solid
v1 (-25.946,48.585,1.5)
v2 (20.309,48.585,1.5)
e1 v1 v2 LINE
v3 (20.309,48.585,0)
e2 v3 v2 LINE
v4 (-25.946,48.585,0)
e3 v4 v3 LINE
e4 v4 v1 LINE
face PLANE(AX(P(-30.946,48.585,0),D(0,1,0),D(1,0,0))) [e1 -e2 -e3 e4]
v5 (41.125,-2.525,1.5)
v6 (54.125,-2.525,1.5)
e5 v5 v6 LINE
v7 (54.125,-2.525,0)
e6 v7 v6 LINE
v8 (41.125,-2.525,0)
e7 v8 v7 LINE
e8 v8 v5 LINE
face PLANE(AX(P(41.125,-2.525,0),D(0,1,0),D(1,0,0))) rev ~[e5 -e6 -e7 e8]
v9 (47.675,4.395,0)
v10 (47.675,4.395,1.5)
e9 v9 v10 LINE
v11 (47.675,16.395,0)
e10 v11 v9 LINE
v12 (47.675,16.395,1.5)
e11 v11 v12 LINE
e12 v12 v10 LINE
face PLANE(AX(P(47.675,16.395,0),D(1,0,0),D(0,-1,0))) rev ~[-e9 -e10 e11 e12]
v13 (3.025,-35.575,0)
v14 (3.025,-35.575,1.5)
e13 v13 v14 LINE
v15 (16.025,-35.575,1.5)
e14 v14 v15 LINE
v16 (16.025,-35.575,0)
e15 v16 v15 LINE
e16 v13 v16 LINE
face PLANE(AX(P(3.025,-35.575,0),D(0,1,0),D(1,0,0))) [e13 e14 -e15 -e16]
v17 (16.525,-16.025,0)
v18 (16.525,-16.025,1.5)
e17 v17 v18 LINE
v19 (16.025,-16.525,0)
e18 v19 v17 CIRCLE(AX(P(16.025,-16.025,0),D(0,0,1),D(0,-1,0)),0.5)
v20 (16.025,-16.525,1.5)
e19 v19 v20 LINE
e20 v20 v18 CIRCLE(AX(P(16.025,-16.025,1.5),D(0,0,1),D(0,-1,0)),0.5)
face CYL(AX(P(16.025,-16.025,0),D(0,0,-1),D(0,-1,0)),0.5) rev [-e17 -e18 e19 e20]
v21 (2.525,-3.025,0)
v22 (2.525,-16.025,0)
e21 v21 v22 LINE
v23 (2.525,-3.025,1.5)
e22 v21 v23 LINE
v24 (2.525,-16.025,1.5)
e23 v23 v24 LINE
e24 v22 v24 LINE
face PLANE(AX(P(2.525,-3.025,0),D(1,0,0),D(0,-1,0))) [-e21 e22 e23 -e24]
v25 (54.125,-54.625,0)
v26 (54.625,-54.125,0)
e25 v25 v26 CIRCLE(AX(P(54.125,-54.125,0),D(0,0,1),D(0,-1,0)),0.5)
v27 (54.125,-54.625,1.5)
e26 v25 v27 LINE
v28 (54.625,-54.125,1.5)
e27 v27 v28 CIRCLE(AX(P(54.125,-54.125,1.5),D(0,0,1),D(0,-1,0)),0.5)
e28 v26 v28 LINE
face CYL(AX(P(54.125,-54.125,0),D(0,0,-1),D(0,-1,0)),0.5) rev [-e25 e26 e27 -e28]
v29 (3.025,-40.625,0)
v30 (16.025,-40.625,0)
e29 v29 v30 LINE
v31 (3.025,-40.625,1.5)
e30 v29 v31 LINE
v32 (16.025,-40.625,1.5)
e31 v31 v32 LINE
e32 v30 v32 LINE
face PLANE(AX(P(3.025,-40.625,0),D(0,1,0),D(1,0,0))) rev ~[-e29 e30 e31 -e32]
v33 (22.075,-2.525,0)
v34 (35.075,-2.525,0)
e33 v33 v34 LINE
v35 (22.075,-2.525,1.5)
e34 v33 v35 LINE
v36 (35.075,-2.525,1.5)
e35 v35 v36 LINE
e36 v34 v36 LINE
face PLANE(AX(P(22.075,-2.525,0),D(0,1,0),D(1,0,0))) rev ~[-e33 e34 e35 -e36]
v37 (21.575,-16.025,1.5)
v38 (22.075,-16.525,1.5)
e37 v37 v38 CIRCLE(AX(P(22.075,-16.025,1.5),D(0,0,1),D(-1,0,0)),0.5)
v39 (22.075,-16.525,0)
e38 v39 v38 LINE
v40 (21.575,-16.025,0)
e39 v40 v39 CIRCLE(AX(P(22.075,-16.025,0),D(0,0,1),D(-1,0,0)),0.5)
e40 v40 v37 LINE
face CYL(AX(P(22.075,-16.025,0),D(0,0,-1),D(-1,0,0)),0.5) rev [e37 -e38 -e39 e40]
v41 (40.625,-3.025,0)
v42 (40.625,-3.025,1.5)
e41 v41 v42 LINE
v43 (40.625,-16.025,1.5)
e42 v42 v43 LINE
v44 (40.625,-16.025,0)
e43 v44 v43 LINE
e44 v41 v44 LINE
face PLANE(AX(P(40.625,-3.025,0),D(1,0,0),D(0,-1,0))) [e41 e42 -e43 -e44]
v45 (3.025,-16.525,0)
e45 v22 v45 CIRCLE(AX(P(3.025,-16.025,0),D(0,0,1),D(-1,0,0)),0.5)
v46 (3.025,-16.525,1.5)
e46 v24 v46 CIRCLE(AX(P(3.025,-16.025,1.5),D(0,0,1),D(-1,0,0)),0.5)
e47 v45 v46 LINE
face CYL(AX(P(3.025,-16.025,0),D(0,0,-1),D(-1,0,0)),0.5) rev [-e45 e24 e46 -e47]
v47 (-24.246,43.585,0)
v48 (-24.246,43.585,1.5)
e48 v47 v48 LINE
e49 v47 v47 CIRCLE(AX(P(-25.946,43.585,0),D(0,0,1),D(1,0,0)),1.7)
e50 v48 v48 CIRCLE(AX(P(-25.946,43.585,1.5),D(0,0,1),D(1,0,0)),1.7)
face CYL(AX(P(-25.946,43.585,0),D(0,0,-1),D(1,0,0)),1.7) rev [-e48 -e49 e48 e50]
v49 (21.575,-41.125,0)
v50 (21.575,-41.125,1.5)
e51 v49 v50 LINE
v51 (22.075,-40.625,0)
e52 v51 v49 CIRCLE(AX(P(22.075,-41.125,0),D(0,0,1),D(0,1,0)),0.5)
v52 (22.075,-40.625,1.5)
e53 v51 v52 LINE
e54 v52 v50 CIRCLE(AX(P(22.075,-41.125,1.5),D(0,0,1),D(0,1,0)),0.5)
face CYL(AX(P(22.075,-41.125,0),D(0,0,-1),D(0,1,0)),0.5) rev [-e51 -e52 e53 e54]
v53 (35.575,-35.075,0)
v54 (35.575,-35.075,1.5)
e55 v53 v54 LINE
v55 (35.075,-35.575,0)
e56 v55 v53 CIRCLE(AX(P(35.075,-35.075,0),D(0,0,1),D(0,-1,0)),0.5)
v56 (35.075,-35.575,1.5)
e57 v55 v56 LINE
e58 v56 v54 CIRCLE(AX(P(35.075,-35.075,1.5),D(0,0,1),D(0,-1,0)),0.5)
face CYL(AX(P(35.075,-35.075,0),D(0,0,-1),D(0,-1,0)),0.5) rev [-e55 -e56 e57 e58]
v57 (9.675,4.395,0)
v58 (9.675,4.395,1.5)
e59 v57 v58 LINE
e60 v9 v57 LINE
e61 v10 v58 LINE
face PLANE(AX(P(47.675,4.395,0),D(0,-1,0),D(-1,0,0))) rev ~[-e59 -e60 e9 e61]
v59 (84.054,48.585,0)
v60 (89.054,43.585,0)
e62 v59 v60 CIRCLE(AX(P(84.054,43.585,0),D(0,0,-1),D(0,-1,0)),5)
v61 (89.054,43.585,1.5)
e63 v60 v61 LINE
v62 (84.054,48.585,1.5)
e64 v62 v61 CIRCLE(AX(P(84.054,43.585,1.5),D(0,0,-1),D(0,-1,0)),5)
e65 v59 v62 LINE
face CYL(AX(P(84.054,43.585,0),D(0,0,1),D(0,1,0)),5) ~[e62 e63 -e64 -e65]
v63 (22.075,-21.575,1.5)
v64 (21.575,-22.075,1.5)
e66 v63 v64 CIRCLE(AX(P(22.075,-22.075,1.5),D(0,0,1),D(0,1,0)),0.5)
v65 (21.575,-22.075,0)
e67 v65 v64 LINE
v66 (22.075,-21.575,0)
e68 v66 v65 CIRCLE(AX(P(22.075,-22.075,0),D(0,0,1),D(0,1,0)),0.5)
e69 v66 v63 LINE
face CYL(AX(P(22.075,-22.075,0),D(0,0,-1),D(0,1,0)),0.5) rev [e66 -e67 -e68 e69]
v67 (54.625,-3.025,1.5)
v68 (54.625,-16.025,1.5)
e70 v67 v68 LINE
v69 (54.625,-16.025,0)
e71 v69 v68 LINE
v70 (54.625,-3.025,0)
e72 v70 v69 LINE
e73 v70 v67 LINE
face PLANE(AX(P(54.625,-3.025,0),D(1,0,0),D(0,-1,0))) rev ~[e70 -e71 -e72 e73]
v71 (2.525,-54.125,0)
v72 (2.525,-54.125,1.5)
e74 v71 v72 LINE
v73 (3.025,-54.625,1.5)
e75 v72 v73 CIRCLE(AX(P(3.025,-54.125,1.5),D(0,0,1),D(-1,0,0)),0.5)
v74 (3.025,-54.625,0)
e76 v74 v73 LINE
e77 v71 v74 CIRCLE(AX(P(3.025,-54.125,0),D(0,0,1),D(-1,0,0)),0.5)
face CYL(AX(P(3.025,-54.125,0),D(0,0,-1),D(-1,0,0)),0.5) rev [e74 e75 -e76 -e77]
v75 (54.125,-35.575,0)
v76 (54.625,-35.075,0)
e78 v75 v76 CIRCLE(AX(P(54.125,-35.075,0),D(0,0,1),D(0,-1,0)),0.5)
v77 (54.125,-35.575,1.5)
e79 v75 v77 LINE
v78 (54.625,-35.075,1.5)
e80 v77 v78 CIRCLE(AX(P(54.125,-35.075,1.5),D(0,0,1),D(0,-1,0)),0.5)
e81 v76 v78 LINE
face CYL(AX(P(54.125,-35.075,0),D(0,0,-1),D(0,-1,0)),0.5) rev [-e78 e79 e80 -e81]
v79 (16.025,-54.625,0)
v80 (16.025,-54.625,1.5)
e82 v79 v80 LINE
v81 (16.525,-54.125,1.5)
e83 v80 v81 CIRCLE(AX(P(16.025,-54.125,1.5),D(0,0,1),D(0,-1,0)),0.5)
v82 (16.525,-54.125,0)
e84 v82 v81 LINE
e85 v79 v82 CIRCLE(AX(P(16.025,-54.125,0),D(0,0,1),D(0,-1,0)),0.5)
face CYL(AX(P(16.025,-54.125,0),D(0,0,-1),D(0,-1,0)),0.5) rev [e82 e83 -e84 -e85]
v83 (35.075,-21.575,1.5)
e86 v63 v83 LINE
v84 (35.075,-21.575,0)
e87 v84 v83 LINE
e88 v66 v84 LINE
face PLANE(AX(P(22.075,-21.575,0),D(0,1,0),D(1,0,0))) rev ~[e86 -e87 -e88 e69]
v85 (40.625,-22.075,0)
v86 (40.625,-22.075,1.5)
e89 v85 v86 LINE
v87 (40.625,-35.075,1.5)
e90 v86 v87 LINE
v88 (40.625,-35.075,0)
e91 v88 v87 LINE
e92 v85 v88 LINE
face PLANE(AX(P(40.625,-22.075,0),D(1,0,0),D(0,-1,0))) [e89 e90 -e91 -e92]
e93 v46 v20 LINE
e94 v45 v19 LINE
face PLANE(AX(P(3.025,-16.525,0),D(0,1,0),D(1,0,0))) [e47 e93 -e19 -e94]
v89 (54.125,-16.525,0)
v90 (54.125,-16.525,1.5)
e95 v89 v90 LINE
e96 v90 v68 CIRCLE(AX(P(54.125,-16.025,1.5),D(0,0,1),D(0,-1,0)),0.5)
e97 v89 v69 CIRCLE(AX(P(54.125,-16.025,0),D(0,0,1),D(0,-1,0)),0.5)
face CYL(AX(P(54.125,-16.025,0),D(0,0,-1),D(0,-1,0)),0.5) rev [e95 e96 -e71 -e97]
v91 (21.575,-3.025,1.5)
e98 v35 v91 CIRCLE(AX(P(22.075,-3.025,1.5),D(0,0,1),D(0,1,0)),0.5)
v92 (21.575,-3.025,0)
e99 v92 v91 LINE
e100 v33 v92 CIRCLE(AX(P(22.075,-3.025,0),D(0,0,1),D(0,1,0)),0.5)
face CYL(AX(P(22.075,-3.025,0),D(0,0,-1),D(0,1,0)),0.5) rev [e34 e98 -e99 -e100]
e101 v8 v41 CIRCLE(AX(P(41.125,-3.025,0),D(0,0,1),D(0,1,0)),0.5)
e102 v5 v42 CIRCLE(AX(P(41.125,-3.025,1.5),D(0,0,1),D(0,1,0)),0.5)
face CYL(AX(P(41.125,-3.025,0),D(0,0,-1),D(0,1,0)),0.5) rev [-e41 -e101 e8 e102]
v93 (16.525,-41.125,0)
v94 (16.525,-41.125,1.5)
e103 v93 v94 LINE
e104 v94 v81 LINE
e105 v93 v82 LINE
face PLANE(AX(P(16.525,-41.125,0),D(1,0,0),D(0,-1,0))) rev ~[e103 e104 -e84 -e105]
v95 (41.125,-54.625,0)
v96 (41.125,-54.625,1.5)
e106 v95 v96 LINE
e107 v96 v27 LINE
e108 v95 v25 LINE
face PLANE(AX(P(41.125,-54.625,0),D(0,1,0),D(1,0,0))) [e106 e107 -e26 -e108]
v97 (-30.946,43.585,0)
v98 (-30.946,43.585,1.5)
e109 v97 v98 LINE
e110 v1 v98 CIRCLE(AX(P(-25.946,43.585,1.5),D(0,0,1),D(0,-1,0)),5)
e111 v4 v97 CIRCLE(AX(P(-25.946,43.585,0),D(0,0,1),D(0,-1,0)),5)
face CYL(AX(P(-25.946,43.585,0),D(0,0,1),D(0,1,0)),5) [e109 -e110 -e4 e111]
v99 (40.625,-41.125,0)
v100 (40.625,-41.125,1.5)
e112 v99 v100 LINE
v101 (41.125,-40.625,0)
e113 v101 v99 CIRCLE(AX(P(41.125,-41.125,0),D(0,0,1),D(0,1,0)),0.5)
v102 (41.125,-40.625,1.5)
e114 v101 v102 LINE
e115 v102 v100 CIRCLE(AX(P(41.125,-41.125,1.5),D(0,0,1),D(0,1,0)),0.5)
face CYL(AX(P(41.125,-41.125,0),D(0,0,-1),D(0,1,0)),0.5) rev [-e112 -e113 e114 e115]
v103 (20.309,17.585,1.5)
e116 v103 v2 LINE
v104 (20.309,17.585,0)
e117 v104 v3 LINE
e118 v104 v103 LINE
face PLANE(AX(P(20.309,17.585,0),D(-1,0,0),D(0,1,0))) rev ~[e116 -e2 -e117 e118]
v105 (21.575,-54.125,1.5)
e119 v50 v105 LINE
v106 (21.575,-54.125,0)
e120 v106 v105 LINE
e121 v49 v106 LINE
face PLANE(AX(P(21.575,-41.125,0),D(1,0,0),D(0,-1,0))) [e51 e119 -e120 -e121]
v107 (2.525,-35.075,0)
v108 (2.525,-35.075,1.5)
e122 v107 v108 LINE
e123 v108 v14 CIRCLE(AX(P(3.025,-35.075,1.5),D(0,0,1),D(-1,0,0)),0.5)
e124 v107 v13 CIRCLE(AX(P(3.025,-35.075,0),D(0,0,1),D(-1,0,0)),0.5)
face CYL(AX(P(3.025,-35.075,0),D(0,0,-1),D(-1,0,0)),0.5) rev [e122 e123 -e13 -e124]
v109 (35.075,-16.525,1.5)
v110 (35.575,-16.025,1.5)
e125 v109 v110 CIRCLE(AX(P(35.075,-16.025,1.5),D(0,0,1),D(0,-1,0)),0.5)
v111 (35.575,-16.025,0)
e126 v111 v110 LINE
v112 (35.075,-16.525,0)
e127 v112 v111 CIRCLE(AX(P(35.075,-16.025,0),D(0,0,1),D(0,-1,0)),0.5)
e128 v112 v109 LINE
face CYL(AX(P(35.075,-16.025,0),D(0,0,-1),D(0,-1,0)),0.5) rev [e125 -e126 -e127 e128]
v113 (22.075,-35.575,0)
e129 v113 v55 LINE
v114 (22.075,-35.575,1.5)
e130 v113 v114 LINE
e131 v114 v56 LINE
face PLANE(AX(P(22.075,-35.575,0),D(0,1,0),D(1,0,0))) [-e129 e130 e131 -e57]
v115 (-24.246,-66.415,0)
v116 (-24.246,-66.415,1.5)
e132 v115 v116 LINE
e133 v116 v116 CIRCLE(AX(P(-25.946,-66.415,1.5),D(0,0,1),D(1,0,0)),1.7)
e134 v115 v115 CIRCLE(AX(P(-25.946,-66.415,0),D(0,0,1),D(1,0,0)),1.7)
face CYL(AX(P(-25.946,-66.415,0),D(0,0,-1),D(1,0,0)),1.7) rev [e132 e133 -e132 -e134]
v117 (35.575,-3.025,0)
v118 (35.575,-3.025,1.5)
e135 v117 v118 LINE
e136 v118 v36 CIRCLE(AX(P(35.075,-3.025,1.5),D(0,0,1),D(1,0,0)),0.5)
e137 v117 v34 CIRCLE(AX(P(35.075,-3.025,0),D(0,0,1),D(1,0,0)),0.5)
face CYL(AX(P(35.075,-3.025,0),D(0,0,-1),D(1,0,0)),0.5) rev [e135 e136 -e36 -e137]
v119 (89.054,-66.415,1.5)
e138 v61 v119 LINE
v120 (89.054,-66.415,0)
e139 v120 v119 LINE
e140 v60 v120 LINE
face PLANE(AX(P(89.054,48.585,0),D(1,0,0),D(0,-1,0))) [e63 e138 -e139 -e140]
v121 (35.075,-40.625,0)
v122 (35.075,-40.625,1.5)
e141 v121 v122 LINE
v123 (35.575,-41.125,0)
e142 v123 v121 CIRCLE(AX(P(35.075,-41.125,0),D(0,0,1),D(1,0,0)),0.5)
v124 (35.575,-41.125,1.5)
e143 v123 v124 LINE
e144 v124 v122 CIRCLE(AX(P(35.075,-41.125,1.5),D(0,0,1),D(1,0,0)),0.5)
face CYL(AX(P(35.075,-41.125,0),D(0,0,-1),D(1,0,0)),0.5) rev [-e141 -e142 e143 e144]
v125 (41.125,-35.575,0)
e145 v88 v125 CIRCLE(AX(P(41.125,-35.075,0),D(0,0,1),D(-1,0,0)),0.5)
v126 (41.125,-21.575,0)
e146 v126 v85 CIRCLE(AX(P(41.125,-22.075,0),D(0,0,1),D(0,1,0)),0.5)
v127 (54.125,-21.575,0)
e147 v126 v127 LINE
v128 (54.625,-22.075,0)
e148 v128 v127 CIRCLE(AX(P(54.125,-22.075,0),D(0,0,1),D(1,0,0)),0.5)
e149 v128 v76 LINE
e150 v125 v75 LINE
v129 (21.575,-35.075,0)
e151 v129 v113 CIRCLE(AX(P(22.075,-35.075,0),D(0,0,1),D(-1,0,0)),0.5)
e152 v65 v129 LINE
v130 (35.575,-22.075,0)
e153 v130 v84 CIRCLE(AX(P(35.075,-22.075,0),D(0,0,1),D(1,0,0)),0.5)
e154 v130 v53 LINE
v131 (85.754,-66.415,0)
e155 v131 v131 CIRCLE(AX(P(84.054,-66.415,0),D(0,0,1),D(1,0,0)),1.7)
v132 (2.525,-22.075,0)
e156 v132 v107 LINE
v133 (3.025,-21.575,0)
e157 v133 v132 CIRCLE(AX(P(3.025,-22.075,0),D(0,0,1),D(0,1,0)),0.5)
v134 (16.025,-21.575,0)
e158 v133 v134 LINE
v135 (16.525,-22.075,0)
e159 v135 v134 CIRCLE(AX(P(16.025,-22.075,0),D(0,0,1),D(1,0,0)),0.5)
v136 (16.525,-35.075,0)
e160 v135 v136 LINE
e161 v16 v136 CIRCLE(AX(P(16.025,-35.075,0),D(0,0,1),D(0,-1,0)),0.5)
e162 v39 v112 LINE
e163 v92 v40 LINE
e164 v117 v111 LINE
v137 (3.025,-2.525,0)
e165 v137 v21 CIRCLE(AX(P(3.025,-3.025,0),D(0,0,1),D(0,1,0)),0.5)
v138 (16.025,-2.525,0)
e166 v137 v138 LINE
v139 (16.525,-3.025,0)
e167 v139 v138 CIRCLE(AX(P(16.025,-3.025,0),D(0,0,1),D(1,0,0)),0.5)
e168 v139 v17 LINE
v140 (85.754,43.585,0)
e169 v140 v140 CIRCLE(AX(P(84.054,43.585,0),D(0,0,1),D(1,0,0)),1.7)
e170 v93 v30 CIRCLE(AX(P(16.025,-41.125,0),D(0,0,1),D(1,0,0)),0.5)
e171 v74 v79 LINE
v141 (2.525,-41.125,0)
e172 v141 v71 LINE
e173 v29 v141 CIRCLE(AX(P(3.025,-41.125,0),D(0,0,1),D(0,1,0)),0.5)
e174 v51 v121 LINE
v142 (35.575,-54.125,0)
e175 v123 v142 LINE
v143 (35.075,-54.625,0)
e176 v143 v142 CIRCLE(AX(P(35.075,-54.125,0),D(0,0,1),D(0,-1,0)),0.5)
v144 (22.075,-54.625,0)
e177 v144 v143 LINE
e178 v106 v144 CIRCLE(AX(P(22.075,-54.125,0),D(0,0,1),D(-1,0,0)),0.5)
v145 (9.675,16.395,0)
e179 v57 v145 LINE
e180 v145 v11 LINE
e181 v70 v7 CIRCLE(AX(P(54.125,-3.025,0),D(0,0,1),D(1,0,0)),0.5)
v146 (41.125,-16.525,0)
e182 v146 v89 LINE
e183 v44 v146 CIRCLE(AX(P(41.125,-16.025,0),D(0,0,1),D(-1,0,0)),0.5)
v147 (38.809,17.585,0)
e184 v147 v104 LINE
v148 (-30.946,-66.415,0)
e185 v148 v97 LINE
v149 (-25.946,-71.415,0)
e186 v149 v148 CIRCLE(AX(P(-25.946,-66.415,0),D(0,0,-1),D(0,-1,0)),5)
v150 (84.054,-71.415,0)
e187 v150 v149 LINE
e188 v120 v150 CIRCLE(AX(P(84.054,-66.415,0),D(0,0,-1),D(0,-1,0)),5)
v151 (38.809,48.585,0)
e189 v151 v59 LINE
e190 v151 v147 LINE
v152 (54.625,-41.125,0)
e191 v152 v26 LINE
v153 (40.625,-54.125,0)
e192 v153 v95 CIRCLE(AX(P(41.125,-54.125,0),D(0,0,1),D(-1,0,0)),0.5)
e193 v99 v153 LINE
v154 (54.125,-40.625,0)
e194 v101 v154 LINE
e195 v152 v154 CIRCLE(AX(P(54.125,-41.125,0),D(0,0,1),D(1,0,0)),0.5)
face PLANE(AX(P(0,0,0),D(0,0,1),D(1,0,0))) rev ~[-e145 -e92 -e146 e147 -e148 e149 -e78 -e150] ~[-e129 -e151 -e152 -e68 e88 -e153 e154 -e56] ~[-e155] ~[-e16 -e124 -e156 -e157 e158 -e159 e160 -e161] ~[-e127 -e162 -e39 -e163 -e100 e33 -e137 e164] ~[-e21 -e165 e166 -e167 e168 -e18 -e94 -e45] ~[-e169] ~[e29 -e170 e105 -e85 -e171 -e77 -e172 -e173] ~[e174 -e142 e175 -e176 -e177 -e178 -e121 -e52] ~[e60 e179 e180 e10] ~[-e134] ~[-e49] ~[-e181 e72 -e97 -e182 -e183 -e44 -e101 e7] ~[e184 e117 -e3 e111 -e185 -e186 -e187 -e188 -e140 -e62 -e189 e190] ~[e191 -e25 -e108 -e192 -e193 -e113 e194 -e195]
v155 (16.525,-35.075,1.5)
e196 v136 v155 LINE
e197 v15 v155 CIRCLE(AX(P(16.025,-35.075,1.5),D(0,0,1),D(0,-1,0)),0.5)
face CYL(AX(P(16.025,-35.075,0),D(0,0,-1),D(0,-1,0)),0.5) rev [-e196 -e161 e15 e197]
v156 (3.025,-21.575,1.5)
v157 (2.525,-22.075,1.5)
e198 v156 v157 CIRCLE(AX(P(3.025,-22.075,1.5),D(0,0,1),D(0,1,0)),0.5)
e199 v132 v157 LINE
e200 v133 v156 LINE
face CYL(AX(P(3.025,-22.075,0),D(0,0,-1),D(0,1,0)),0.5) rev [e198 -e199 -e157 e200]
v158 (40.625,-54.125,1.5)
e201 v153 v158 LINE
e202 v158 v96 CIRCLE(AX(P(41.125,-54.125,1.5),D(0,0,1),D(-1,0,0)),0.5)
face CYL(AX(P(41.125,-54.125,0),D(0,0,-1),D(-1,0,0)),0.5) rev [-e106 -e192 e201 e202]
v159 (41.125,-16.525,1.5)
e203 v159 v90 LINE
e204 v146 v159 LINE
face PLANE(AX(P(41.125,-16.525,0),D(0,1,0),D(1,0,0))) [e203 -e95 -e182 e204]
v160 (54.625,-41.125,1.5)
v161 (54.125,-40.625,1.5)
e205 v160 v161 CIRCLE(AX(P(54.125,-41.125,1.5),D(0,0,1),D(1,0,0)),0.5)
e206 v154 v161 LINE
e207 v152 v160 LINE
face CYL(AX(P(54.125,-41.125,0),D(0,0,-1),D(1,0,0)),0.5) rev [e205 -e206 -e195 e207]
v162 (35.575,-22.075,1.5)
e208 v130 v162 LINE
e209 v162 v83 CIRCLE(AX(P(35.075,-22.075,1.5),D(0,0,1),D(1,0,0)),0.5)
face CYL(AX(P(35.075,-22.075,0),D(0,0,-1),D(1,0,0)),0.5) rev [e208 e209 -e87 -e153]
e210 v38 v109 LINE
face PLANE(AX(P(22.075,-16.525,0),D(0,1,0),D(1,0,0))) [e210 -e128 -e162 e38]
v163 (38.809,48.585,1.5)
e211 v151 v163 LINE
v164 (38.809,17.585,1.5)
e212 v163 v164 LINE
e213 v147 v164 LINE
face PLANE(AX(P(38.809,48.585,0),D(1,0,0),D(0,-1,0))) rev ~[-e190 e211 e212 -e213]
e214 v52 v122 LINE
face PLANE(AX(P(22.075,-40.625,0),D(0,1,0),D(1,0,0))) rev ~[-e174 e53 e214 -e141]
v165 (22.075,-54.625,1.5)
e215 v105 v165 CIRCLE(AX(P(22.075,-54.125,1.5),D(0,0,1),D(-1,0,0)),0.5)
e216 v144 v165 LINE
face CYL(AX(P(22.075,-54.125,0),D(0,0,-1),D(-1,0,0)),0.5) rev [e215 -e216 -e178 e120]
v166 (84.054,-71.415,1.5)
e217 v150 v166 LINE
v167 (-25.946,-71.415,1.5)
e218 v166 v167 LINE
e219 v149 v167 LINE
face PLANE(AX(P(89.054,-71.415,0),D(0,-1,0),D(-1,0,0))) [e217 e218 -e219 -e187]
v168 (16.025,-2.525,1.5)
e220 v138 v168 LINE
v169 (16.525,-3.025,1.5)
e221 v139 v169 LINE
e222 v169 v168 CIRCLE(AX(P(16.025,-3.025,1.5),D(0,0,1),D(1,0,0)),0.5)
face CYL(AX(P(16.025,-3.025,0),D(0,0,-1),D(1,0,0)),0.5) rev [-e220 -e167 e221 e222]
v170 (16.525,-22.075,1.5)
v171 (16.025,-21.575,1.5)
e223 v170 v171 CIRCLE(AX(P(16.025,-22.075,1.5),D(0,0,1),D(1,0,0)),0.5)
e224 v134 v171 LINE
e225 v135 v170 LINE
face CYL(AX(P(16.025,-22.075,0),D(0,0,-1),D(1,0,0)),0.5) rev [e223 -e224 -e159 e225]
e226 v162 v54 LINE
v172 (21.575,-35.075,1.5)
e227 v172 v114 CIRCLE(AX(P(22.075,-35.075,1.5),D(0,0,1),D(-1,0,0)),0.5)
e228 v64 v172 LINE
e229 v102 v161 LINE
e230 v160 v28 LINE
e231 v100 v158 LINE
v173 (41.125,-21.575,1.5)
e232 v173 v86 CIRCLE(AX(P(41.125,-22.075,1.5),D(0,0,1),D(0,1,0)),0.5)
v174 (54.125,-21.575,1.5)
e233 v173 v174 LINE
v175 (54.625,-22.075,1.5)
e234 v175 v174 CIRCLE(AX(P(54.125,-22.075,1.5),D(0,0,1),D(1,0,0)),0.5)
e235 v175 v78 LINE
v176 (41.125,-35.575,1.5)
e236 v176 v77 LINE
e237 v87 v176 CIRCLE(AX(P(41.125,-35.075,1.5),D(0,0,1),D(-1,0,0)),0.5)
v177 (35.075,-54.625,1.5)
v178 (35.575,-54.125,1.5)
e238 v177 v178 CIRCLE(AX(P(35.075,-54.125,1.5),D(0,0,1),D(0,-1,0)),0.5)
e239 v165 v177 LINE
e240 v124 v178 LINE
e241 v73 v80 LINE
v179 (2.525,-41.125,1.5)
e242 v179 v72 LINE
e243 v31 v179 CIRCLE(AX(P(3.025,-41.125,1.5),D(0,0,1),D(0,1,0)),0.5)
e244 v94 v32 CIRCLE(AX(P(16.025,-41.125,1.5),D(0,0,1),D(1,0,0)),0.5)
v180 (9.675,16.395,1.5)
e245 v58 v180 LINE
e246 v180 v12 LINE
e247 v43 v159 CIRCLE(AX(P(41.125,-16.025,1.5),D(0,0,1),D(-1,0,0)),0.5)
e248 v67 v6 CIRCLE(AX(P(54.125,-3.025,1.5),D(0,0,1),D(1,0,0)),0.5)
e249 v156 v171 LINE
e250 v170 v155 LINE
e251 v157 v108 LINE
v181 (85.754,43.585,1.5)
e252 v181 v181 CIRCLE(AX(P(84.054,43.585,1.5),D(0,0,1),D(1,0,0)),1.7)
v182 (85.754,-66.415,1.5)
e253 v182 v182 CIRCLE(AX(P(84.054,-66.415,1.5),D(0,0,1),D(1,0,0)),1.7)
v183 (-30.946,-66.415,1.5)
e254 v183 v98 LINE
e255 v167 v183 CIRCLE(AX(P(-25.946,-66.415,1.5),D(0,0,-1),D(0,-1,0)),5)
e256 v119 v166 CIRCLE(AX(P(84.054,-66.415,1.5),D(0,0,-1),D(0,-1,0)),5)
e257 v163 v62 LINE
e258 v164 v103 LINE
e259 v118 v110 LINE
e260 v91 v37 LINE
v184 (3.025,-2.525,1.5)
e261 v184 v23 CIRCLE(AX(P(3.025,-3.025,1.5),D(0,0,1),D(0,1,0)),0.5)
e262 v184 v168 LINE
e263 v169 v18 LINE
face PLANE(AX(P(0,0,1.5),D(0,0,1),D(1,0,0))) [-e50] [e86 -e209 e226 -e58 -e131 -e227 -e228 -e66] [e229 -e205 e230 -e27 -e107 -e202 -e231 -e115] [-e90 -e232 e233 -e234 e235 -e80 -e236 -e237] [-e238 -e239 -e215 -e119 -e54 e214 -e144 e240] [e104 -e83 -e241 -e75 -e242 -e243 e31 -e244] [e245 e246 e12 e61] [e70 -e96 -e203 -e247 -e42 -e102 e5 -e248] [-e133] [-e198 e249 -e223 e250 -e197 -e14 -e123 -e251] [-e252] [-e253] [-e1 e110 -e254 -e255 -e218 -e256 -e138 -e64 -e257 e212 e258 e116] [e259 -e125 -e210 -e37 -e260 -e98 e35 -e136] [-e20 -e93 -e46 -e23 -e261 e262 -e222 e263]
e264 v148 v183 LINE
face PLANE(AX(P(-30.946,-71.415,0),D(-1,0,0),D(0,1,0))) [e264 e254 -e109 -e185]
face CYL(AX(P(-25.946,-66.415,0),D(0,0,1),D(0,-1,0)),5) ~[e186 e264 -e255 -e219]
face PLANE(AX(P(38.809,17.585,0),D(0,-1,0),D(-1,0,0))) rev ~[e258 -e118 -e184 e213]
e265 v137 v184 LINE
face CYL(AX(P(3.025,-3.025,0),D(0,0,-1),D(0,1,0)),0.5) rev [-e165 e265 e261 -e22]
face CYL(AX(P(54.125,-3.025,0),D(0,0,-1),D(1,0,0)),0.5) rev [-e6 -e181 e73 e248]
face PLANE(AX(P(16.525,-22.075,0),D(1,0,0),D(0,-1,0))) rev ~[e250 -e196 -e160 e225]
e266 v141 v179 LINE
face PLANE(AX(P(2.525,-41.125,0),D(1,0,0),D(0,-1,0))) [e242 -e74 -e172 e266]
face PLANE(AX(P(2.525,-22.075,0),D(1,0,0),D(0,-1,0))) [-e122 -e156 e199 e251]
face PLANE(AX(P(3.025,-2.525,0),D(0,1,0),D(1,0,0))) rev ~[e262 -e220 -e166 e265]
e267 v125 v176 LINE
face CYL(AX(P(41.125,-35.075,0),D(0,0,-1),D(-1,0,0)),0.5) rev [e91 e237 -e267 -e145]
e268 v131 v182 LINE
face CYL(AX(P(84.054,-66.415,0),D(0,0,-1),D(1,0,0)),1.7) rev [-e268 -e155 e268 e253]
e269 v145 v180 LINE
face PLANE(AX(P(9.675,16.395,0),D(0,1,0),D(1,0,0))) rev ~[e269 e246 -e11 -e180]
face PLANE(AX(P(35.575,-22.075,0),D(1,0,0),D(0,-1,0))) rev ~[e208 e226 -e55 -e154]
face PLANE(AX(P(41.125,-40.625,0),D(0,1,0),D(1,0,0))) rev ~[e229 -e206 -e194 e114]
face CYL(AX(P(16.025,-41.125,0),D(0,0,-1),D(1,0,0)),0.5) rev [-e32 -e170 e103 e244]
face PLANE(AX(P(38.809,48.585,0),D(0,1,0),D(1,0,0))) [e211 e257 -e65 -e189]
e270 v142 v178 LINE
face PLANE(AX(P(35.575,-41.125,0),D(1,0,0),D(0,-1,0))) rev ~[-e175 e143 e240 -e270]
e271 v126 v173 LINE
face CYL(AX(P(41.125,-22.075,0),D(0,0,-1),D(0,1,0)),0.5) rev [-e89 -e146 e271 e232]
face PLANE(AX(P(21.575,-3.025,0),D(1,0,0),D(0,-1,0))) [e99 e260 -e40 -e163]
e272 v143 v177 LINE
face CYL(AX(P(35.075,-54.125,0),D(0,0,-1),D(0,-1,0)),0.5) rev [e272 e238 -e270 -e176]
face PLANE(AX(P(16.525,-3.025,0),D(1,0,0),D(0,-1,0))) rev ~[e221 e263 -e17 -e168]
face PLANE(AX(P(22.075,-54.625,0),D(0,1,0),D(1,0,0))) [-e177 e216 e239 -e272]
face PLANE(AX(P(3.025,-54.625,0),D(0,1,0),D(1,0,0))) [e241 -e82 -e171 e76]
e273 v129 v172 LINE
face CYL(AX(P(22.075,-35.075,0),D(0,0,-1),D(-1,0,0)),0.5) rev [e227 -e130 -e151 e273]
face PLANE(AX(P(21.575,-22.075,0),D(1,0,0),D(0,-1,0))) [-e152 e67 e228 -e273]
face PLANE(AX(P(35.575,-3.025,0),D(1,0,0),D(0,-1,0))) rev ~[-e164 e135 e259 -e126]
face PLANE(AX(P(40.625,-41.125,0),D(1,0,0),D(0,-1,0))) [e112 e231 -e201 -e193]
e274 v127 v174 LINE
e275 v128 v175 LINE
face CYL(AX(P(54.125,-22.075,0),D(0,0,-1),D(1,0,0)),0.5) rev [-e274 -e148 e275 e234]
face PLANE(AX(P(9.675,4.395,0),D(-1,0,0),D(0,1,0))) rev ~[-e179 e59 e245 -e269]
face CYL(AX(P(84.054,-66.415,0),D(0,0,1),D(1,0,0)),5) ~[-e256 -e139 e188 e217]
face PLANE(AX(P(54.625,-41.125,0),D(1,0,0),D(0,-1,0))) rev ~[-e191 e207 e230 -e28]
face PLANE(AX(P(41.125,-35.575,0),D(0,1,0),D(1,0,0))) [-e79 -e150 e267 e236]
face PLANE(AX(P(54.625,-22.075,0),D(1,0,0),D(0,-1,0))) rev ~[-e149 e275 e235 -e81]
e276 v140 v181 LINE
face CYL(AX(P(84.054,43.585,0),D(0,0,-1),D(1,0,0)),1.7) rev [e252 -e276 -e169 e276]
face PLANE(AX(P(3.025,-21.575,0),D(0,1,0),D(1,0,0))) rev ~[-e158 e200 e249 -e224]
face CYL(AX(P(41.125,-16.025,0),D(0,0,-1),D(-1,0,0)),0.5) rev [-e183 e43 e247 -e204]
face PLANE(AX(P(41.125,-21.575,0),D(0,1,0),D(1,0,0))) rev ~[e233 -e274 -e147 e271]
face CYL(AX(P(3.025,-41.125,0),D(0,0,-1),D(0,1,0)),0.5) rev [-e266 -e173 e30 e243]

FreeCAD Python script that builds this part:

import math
import FreeCAD as App
import Part
import Sketcher

V = App.Vector
Q = App.Units.Quantity


def edges_at(feature, points):
    """Names of the edges that pass closest to the given points."""
    edges = feature.Shape.Edges
    near = lambda p: min(range(len(edges)), key=lambda i: edges[i].distToShape(Part.Vertex(*p))[0])
    return sorted({f"Edge{near(p) + 1}" for p in points})

doc = App.newDocument("Part")
body = doc.addObject("PartDesign::Body", "Body")

# Sketch on XY plane
sketch1 = body.newObject("Sketcher::SketchObject", "Sketch")
sketch1.AttachmentSupport = (doc.getObject("XY_Plane"), [""])
sketch1.MapMode = "FlatFace"
sketch1.addGeometry([
    Part.LineSegment(V(20.309, 48.585, 0), V(-30.946, 48.585, 0)),  # 0
    Part.LineSegment(V(-30.946, 48.585, 0), V(-30.946, -71.415, 0)),  # 1
    Part.LineSegment(V(-30.946, -71.415, 0), V(89.054, -71.415, 0)),  # 2
    Part.LineSegment(V(89.054, -71.415, 0), V(89.054, 48.585, 0)),  # 3
    Part.LineSegment(V(89.054, 48.585, 0), V(38.809, 48.585, 0)),  # 4
    Part.LineSegment(V(38.809, 48.585, 0), V(38.809, 17.585, 0)),  # 5
    Part.LineSegment(V(38.809, 17.585, 0), V(20.309, 17.585, 0)),  # 6
    Part.LineSegment(V(20.309, 17.585, 0), V(20.309, 48.585, 0)),  # 7
    Part.Circle(V(-25.946, -66.415, 0), V(0, 0, 1), 1.7),  # 8
    Part.ArcOfCircle(Part.Circle(V(3.025, -41.125, 0), V(0, 0, 1), 0.5), math.radians(90), math.radians(180)),  # 9
    Part.LineSegment(V(3.025, -40.625, 0), V(16.025, -40.625, 0)),  # 10
    Part.ArcOfCircle(Part.Circle(V(16.025, -41.125, 0), V(0, 0, 1), 0.5), math.radians(0), math.radians(90)),  # 11
    Part.LineSegment(V(16.525, -41.125, 0), V(16.525, -54.125, 0)),  # 12
    Part.ArcOfCircle(Part.Circle(V(16.025, -54.125, 0), V(0, 0, 1), 0.5), math.radians(-90), math.radians(0)),  # 13
    Part.LineSegment(V(16.025, -54.625, 0), V(3.025, -54.625, 0)),  # 14
    Part.ArcOfCircle(Part.Circle(V(3.025, -54.125, 0), V(0, 0, 1), 0.5), math.radians(180), math.radians(270)),  # 15
    Part.LineSegment(V(2.525, -54.125, 0), V(2.525, -41.125, 0)),  # 16
    Part.ArcOfCircle(Part.Circle(V(22.075, -41.125, 0), V(0, 0, 1), 0.5), math.radians(90), math.radians(180)),  # 17
    Part.LineSegment(V(22.075, -40.625, 0), V(35.075, -40.625, 0)),  # 18
    Part.ArcOfCircle(Part.Circle(V(35.075, -41.125, 0), V(0, 0, 1), 0.5), math.radians(0), math.radians(90)),  # 19
    Part.LineSegment(V(35.575, -41.125, 0), V(35.575, -54.125, 0)),  # 20
    Part.ArcOfCircle(Part.Circle(V(35.075, -54.125, 0), V(0, 0, 1), 0.5), math.radians(-90), math.radians(0)),  # 21
    Part.LineSegment(V(35.075, -54.625, 0), V(22.075, -54.625, 0)),  # 22
    Part.ArcOfCircle(Part.Circle(V(22.075, -54.125, 0), V(0, 0, 1), 0.5), math.radians(180), math.radians(270)),  # 23
    Part.LineSegment(V(21.575, -54.125, 0), V(21.575, -41.125, 0)),  # 24
    Part.ArcOfCircle(Part.Circle(V(3.025, -22.075, 0), V(0, 0, 1), 0.5), math.radians(90), math.radians(180)),  # 25
    Part.LineSegment(V(3.025, -21.575, 0), V(16.025, -21.575, 0)),  # 26
    Part.ArcOfCircle(Part.Circle(V(16.025, -22.075, 0), V(0, 0, 1), 0.5), math.radians(0), math.radians(90)),  # 27
    Part.LineSegment(V(16.525, -22.075, 0), V(16.525, -35.075, 0)),  # 28
    Part.ArcOfCircle(Part.Circle(V(16.025, -35.075, 0), V(0, 0, 1), 0.5), math.radians(-90), math.radians(0)),  # 29
    Part.LineSegment(V(16.025, -35.575, 0), V(3.025, -35.575, 0)),  # 30
    Part.ArcOfCircle(Part.Circle(V(3.025, -35.075, 0), V(0, 0, 1), 0.5), math.radians(180), math.radians(270)),  # 31
    Part.LineSegment(V(2.525, -35.075, 0), V(2.525, -22.075, 0)),  # 32
    Part.ArcOfCircle(Part.Circle(V(22.075, -22.075, 0), V(0, 0, 1), 0.5), math.radians(90), math.radians(180)),  # 33
    Part.LineSegment(V(22.075, -21.575, 0), V(35.075, -21.575, 0)),  # 34
    Part.ArcOfCircle(Part.Circle(V(35.075, -22.075, 0), V(0, 0, 1), 0.5), math.radians(0), math.radians(90)),  # 35
    Part.LineSegment(V(35.575, -22.075, 0), V(35.575, -35.075, 0)),  # 36
    Part.ArcOfCircle(Part.Circle(V(35.075, -35.075, 0), V(0, 0, 1), 0.5), math.radians(-90), math.radians(0)),  # 37
    Part.LineSegment(V(35.075, -35.575, 0), V(22.075, -35.575, 0)),  # 38
    Part.ArcOfCircle(Part.Circle(V(22.075, -35.075, 0), V(0, 0, 1), 0.5), math.radians(180), math.radians(270)),  # 39
    Part.LineSegment(V(21.575, -35.075, 0), V(21.575, -22.075, 0)),  # 40
    Part.ArcOfCircle(Part.Circle(V(41.125, -41.125, 0), V(0, 0, 1), 0.5), math.radians(90), math.radians(180)),  # 41
    Part.LineSegment(V(41.125, -40.625, 0), V(54.125, -40.625, 0)),  # 42
    Part.ArcOfCircle(Part.Circle(V(54.125, -41.125, 0), V(0, 0, 1), 0.5), math.radians(0), math.radians(90)),  # 43
    Part.LineSegment(V(54.625, -41.125, 0), V(54.625, -54.125, 0)),  # 44
    Part.ArcOfCircle(Part.Circle(V(54.125, -54.125, 0), V(0, 0, 1), 0.5), math.radians(-90), math.radians(0)),  # 45
    Part.LineSegment(V(54.125, -54.625, 0), V(41.125, -54.625, 0)),  # 46
    Part.ArcOfCircle(Part.Circle(V(41.125, -54.125, 0), V(0, 0, 1), 0.5), math.radians(180), math.radians(270)),  # 47
    Part.LineSegment(V(40.625, -54.125, 0), V(40.625, -41.125, 0)),  # 48
    Part.Circle(V(84.054, -66.415, 0), V(0, 0, 1), 1.7),  # 49
    Part.ArcOfCircle(Part.Circle(V(41.125, -22.075, 0), V(0, 0, 1), 0.5), math.radians(90), math.radians(180)),  # 50
    Part.LineSegment(V(41.125, -21.575, 0), V(54.125, -21.575, 0)),  # 51
    Part.ArcOfCircle(Part.Circle(V(54.125, -22.075, 0), V(0, 0, 1), 0.5), math.radians(0), math.radians(90)),  # 52
    Part.LineSegment(V(54.625, -22.075, 0), V(54.625, -35.075, 0)),  # 53
    Part.ArcOfCircle(Part.Circle(V(54.125, -35.075, 0), V(0, 0, 1), 0.5), math.radians(-90), math.radians(0)),  # 54
    Part.LineSegment(V(54.125, -35.575, 0), V(41.125, -35.575, 0)),  # 55
    Part.ArcOfCircle(Part.Circle(V(41.125, -35.075, 0), V(0, 0, 1), 0.5), math.radians(180), math.radians(270)),  # 56
    Part.LineSegment(V(40.625, -35.075, 0), V(40.625, -22.075, 0)),  # 57
    Part.ArcOfCircle(Part.Circle(V(3.025, -3.025, 0), V(0, 0, 1), 0.5), math.radians(90), math.radians(180)),  # 58
    Part.LineSegment(V(3.025, -2.525, 0), V(16.025, -2.525, 0)),  # 59
    Part.ArcOfCircle(Part.Circle(V(16.025, -3.025, 0), V(0, 0, 1), 0.5), math.radians(0), math.radians(90)),  # 60
    Part.LineSegment(V(16.525, -3.025, 0), V(16.525, -16.025, 0)),  # 61
    Part.ArcOfCircle(Part.Circle(V(16.025, -16.025, 0), V(0, 0, 1), 0.5), math.radians(-90), math.radians(0)),  # 62
    Part.LineSegment(V(16.025, -16.525, 0), V(3.025, -16.525, 0)),  # 63
    Part.ArcOfCircle(Part.Circle(V(3.025, -16.025, 0), V(0, 0, 1), 0.5), math.radians(180), math.radians(270)),  # 64
    Part.LineSegment(V(2.525, -16.025, 0), V(2.525, -3.025, 0)),  # 65
    Part.ArcOfCircle(Part.Circle(V(22.075, -3.025, 0), V(0, 0, 1), 0.5), math.radians(90), math.radians(180)),  # 66
    Part.LineSegment(V(22.075, -2.525, 0), V(35.075, -2.525, 0)),  # 67
    Part.ArcOfCircle(Part.Circle(V(35.075, -3.025, 0), V(0, 0, 1), 0.5), math.radians(0), math.radians(90)),  # 68
    Part.LineSegment(V(35.575, -3.025, 0), V(35.575, -16.025, 0)),  # 69
    Part.ArcOfCircle(Part.Circle(V(35.075, -16.025, 0), V(0, 0, 1), 0.5), math.radians(-90), math.radians(0)),  # 70
    Part.LineSegment(V(35.075, -16.525, 0), V(22.075, -16.525, 0)),  # 71
    Part.ArcOfCircle(Part.Circle(V(22.075, -16.025, 0), V(0, 0, 1), 0.5), math.radians(180), math.radians(270)),  # 72
    Part.LineSegment(V(21.575, -16.025, 0), V(21.575, -3.025, 0)),  # 73
    Part.LineSegment(V(9.675, 4.395, 0), V(9.675, 16.395, 0)),  # 74
    Part.LineSegment(V(9.675, 16.395, 0), V(47.675, 16.395, 0)),  # 75
    Part.LineSegment(V(47.675, 16.395, 0), V(47.675, 4.395, 0)),  # 76
    Part.LineSegment(V(47.675, 4.395, 0), V(9.675, 4.395, 0)),  # 77
    Part.Circle(V(-25.946, 43.585, 0), V(0, 0, 1), 1.7),  # 78
    Part.ArcOfCircle(Part.Circle(V(41.125, -3.025, 0), V(0, 0, 1), 0.5), math.radians(90), math.radians(180)),  # 79
    Part.LineSegment(V(41.125, -2.525, 0), V(54.125, -2.525, 0)),  # 80
    Part.ArcOfCircle(Part.Circle(V(54.125, -3.025, 0), V(0, 0, 1), 0.5), math.radians(0), math.radians(90)),  # 81
    Part.LineSegment(V(54.625, -3.025, 0), V(54.625, -16.025, 0)),  # 82
    Part.ArcOfCircle(Part.Circle(V(54.125, -16.025, 0), V(0, 0, 1), 0.5), math.radians(-90), math.radians(0)),  # 83
    Part.LineSegment(V(54.125, -16.525, 0), V(41.125, -16.525, 0)),  # 84
    Part.ArcOfCircle(Part.Circle(V(41.125, -16.025, 0), V(0, 0, 1), 0.5), math.radians(180), math.radians(270)),  # 85
    Part.LineSegment(V(40.625, -16.025, 0), V(40.625, -3.025, 0)),  # 86
    Part.Circle(V(84.054, 43.585, 0), V(0, 0, 1), 1.7),  # 87
], False)
sketch1.addConstraint([
    Sketcher.Constraint("Coincident", 0, 2, 1, 1),
    Sketcher.Constraint("Coincident", 1, 2, 2, 1),
    Sketcher.Constraint("Coincident", 2, 2, 3, 1),
    Sketcher.Constraint("Coincident", 3, 2, 4, 1),
    Sketcher.Constraint("Coincident", 4, 2, 5, 1),
    Sketcher.Constraint("Coincident", 5, 2, 6, 1),
    Sketcher.Constraint("Coincident", 6, 2, 7, 1),
    Sketcher.Constraint("Coincident", 7, 2, 0, 1),
    Sketcher.Constraint("Tangent", 9, 1, 10, 1),
    Sketcher.Constraint("Tangent", 10, 2, 11, 2),
    Sketcher.Constraint("Tangent", 11, 1, 12, 1),
    Sketcher.Constraint("Tangent", 12, 2, 13, 2),
    Sketcher.Constraint("Tangent", 13, 1, 14, 1),
    Sketcher.Constraint("Tangent", 14, 2, 15, 2),
    Sketcher.Constraint("Tangent", 15, 1, 16, 1),
    Sketcher.Constraint("Tangent", 16, 2, 9, 2),
    Sketcher.Constraint("Tangent", 17, 1, 18, 1),
    Sketcher.Constraint("Tangent", 18, 2, 19, 2),
    Sketcher.Constraint("Tangent", 19, 1, 20, 1),
    Sketcher.Constraint("Tangent", 20, 2, 21, 2),
    Sketcher.Constraint("Tangent", 21, 1, 22, 1),
    Sketcher.Constraint("Tangent", 22, 2, 23, 2),
    Sketcher.Constraint("Tangent", 23, 1, 24, 1),
    Sketcher.Constraint("Tangent", 24, 2, 17, 2),
    Sketcher.Constraint("Tangent", 25, 1, 26, 1),
    Sketcher.Constraint("Tangent", 26, 2, 27, 2),
    Sketcher.Constraint("Tangent", 27, 1, 28, 1),
    Sketcher.Constraint("Tangent", 28, 2, 29, 2),
    Sketcher.Constraint("Tangent", 29, 1, 30, 1),
    Sketcher.Constraint("Tangent", 30, 2, 31, 2),
    Sketcher.Constraint("Tangent", 31, 1, 32, 1),
    Sketcher.Constraint("Tangent", 32, 2, 25, 2),
    Sketcher.Constraint("Tangent", 33, 1, 34, 1),
    Sketcher.Constraint("Tangent", 34, 2, 35, 2),
    Sketcher.Constraint("Tangent", 35, 1, 36, 1),
    Sketcher.Constraint("Tangent", 36, 2, 37, 2),
    Sketcher.Constraint("Tangent", 37, 1, 38, 1),
    Sketcher.Constraint("Tangent", 38, 2, 39, 2),
    Sketcher.Constraint("Tangent", 39, 1, 40, 1),
    Sketcher.Constraint("Tangent", 40, 2, 33, 2),
    Sketcher.Constraint("Tangent", 41, 1, 42, 1),
    Sketcher.Constraint("Tangent", 42, 2, 43, 2),
    Sketcher.Constraint("Tangent", 43, 1, 44, 1),
    Sketcher.Constraint("Tangent", 44, 2, 45, 2),
    Sketcher.Constraint("Tangent", 45, 1, 46, 1),
    Sketcher.Constraint("Tangent", 46, 2, 47, 2),
    Sketcher.Constraint("Tangent", 47, 1, 48, 1),
    Sketcher.Constraint("Tangent", 48, 2, 41, 2),
    Sketcher.Constraint("Tangent", 50, 1, 51, 1),
    Sketcher.Constraint("Tangent", 51, 2, 52, 2),
    Sketcher.Constraint("Tangent", 52, 1, 53, 1),
    Sketcher.Constraint("Tangent", 53, 2, 54, 2),
    Sketcher.Constraint("Tangent", 54, 1, 55, 1),
    Sketcher.Constraint("Tangent", 55, 2, 56, 2),
    Sketcher.Constraint("Tangent", 56, 1, 57, 1),
    Sketcher.Constraint("Tangent", 57, 2, 50, 2),
    Sketcher.Constraint("Tangent", 58, 1, 59, 1),
    Sketcher.Constraint("Tangent", 59, 2, 60, 2),
    Sketcher.Constraint("Tangent", 60, 1, 61, 1),
    Sketcher.Constraint("Tangent", 61, 2, 62, 2),
    Sketcher.Constraint("Tangent", 62, 1, 63, 1),
    Sketcher.Constraint("Tangent", 63, 2, 64, 2),
    Sketcher.Constraint("Tangent", 64, 1, 65, 1),
    Sketcher.Constraint("Tangent", 65, 2, 58, 2),
    Sketcher.Constraint("Tangent", 66, 1, 67, 1),
    Sketcher.Constraint("Tangent", 67, 2, 68, 2),
    Sketcher.Constraint("Tangent", 68, 1, 69, 1),
    Sketcher.Constraint("Tangent", 69, 2, 70, 2),
    Sketcher.Constraint("Tangent", 70, 1, 71, 1),
    Sketcher.Constraint("Tangent", 71, 2, 72, 2),
    Sketcher.Constraint("Tangent", 72, 1, 73, 1),
    Sketcher.Constraint("Tangent", 73, 2, 66, 2),
    Sketcher.Constraint("Coincident", 74, 2, 75, 1),
    Sketcher.Constraint("Coincident", 75, 2, 76, 1),
    Sketcher.Constraint("Coincident", 76, 2, 77, 1),
    Sketcher.Constraint("Coincident", 77, 2, 74, 1),
    Sketcher.Constraint("Tangent", 79, 1, 80, 1),
    Sketcher.Constraint("Tangent", 80, 2, 81, 2),
    Sketcher.Constraint("Tangent", 81, 1, 82, 1),
    Sketcher.Constraint("Tangent", 82, 2, 83, 2),
    Sketcher.Constraint("Tangent", 83, 1, 84, 1),
    Sketcher.Constraint("Tangent", 84, 2, 85, 2),
    Sketcher.Constraint("Tangent", 85, 1, 86, 1),
    Sketcher.Constraint("Tangent", 86, 2, 79, 2),
    Sketcher.Constraint("Horizontal", 0),
    Sketcher.Constraint("Vertical", 1),
    Sketcher.Constraint("Horizontal", 2),
    Sketcher.Constraint("Vertical", 3),
    Sketcher.Constraint("Horizontal", 4),
    Sketcher.Constraint("Vertical", 5),
    Sketcher.Constraint("Horizontal", 6),
    Sketcher.Constraint("Vertical", 7),
    Sketcher.Constraint("Horizontal", 10),
    Sketcher.Constraint("Vertical", 12),
    Sketcher.Constraint("Horizontal", 14),
    Sketcher.Constraint("Vertical", 16),
    Sketcher.Constraint("Horizontal", 18),
    Sketcher.Constraint("Vertical", 20),
    Sketcher.Constraint("Horizontal", 22),
    Sketcher.Constraint("Vertical", 24),
    Sketcher.Constraint("Horizontal", 26),
    Sketcher.Constraint("Vertical", 28),
    Sketcher.Constraint("Horizontal", 30),
    Sketcher.Constraint("Vertical", 32),
    Sketcher.Constraint("Horizontal", 34),
    Sketcher.Constraint("Vertical", 36),
    Sketcher.Constraint("Horizontal", 38),
    Sketcher.Constraint("Vertical", 40),
    Sketcher.Constraint("Horizontal", 42),
    Sketcher.Constraint("Vertical", 44),
    Sketcher.Constraint("Horizontal", 46),
    Sketcher.Constraint("Vertical", 48),
    Sketcher.Constraint("Horizontal", 51),
    Sketcher.Constraint("Vertical", 53),
    Sketcher.Constraint("Horizontal", 55),
    Sketcher.Constraint("Vertical", 57),
    Sketcher.Constraint("Horizontal", 59),
    Sketcher.Constraint("Vertical", 61),
    Sketcher.Constraint("Horizontal", 63),
    Sketcher.Constraint("Vertical", 65),
    Sketcher.Constraint("Horizontal", 67),
    Sketcher.Constraint("Vertical", 69),
    Sketcher.Constraint("Horizontal", 71),
    Sketcher.Constraint("Vertical", 73),
    Sketcher.Constraint("Vertical", 74),
    Sketcher.Constraint("Horizontal", 75),
    Sketcher.Constraint("Vertical", 76),
    Sketcher.Constraint("Horizontal", 77),
    Sketcher.Constraint("Horizontal", 80),
    Sketcher.Constraint("Vertical", 82),
    Sketcher.Constraint("Horizontal", 84),
    Sketcher.Constraint("Vertical", 86),
    Sketcher.Constraint("Equal", 9, 11),
    Sketcher.Constraint("Equal", 11, 13),
    Sketcher.Constraint("Equal", 13, 15),
    Sketcher.Constraint("Equal", 15, 17),
    Sketcher.Constraint("Equal", 17, 19),
    Sketcher.Constraint("Equal", 19, 21),
    Sketcher.Constraint("Equal", 21, 23),
    Sketcher.Constraint("Equal", 23, 25),
    Sketcher.Constraint("Equal", 25, 27),
    Sketcher.Constraint("Equal", 27, 29),
    Sketcher.Constraint("Equal", 29, 31),
    Sketcher.Constraint("Equal", 31, 33),
    Sketcher.Constraint("Equal", 33, 35),
    Sketcher.Constraint("Equal", 35, 37),
    Sketcher.Constraint("Equal", 37, 39),
    Sketcher.Constraint("Equal", 39, 41),
    Sketcher.Constraint("Equal", 41, 43),
    Sketcher.Constraint("Equal", 43, 45),
    Sketcher.Constraint("Equal", 45, 47),
    Sketcher.Constraint("Equal", 8, 49),
    Sketcher.Constraint("Equal", 47, 50),
    Sketcher.Constraint("Equal", 50, 52),
    Sketcher.Constraint("Equal", 52, 54),
    Sketcher.Constraint("Equal", 54, 56),
    Sketcher.Constraint("Equal", 56, 58),
    Sketcher.Constraint("Equal", 58, 60),
    Sketcher.Constraint("Equal", 60, 62),
    Sketcher.Constraint("Equal", 62, 64),
    Sketcher.Constraint("Equal", 64, 66),
    Sketcher.Constraint("Equal", 66, 68),
    Sketcher.Constraint("Equal", 68, 70),
    Sketcher.Constraint("Equal", 70, 72),
    Sketcher.Constraint("Equal", 49, 78),
    Sketcher.Constraint("Equal", 72, 79),
    Sketcher.Constraint("Equal", 79, 81),
    Sketcher.Constraint("Equal", 81, 83),
    Sketcher.Constraint("Equal", 83, 85),
    Sketcher.Constraint("Equal", 78, 87),
    Sketcher.Constraint("Horizontal", 11, 3, 17, 3),
    Sketcher.Constraint("Horizontal", 15, 3, 21, 3),
    Sketcher.Constraint("Horizontal", 27, 3, 33, 3),
    Sketcher.Constraint("Horizontal", 31, 3, 37, 3),
    Sketcher.Constraint("Horizontal", 19, 3, 41, 3),
    Sketcher.Constraint("Horizontal", 23, 3, 45, 3),
    Sketcher.Constraint("Horizontal", 8, 3, 49, 3),
    Sketcher.Constraint("Horizontal", 35, 3, 50, 3),
    Sketcher.Constraint("Horizontal", 39, 3, 54, 3),
    Sketcher.Constraint("Horizontal", 60, 3, 66, 3),
    Sketcher.Constraint("Horizontal", 64, 3, 70, 3),
    Sketcher.Constraint("Horizontal", 68, 3, 79, 3),
    Sketcher.Constraint("Horizontal", 72, 3, 83, 3),
    Sketcher.Constraint("Horizontal", 78, 3, 87, 3),
    Sketcher.Constraint("Horizontal", 0, 2, 3, 2),
    Sketcher.Constraint("Vertical", 15, 3, 25, 3),
    Sketcher.Constraint("Vertical", 13, 3, 27, 3),
    Sketcher.Constraint("Vertical", 23, 3, 33, 3),
    Sketcher.Constraint("Vertical", 21, 3, 35, 3),
    Sketcher.Constraint("Vertical", 47, 3, 50, 3),
    Sketcher.Constraint("Vertical", 45, 3, 52, 3),
    Sketcher.Constraint("Vertical", 31, 3, 58, 3),
    Sketcher.Constraint("Vertical", 29, 3, 60, 3),
    Sketcher.Constraint("Vertical", 39, 3, 66, 3),
    Sketcher.Constraint("Vertical", 37, 3, 68, 3),
    Sketcher.Constraint("Vertical", 8, 3, 78, 3),
    Sketcher.Constraint("Vertical", 56, 3, 79, 3),
    Sketcher.Constraint("Vertical", 54, 3, 81, 3),
    Sketcher.Constraint("Vertical", 49, 3, 87, 3),
    Sketcher.Constraint("Equal", 14, 18),
    Sketcher.Constraint("Equal", 38, 42),
    Sketcher.Constraint("Equal", 2, 1),
    Sketcher.Constraint("Equal", 84, 12),
    Sketcher.Constraint("Equal", 24, 28),
    Sketcher.Constraint("Equal", 57, 61),
    Sketcher.Constraint("Diameter", 8, Q("3.4 mm")),
    Sketcher.Constraint("DistanceX", 2, 1, 2, 2, Q("120 mm")),
    Sketcher.Constraint("DistanceX", 75, 1, 75, 2, Q("38 mm")),
    Sketcher.Constraint("DistanceY", 5, 2, 5, 1, Q("31 mm")),
    Sketcher.Constraint("DistanceY", 74, 1, 74, 2, Q("12 mm")),
    Sketcher.Constraint("DistanceX", 6, 2, 6, 1, Q("18.5 mm")),
    Sketcher.Constraint("Radius", 9, Q("0.5 mm")),
    Sketcher.Constraint("DistanceX", 0, 2, 0, 1, Q("51.255 mm")),
    Sketcher.Constraint("DistanceX", 10, 1, 10, 2, Q("13 mm")),
    Sketcher.Constraint("DistanceX", 8, 3, -1, 1, Q("25.946 mm")),
    Sketcher.Constraint("DistanceY", 8, 3, -1, 1, Q("66.415 mm")),
    Sketcher.Constraint("DistanceX", -1, 1, 9, 3, Q("3.025 mm")),
    Sketcher.Constraint("DistanceY", 9, 3, -1, 1, Q("41.125 mm")),
    Sketcher.Constraint("DistanceX", -1, 1, 17, 3, Q("22.075 mm")),
    Sketcher.Constraint("DistanceY", 25, 3, -1, 1, Q("22.075 mm")),
    Sketcher.Constraint("DistanceX", -1, 1, 41, 3, Q("41.125 mm")),
    Sketcher.Constraint("DistanceX", -1, 1, 49, 3, Q("84.054 mm")),
    Sketcher.Constraint("DistanceY", 58, 3, -1, 1, Q("3.025 mm")),
    Sketcher.Constraint("DistanceY", -1, 1, 78, 3, Q("43.585 mm")),
    Sketcher.Constraint("DistanceX", 0, 2, -1, 1, Q("30.946 mm")),
    Sketcher.Constraint("DistanceY", -1, 1, 0, 2, Q("48.585 mm")),
    Sketcher.Constraint("DistanceX", -1, 1, 74, 2, Q("9.675 mm")),
    Sketcher.Constraint("DistanceY", -1, 1, 74, 2, Q("16.395 mm")),
])
pad1 = body.newObject("PartDesign::Pad", "Pad")
pad1.Profile = sketch1
pad1.Length = 1.5
doc.recompute()

fillet = body.newObject("PartDesign::Fillet", "Fillet")
fillet.Base = (pad1, edges_at(pad1, [
    (-30.946, -71.415, 0.75),
    (89.054, -71.415, 0.75),
    (89.054, 48.585, 0.75),
    (-30.946, 48.585, 0.75),
]))
fillet.Radius = 5

doc.recompute()
